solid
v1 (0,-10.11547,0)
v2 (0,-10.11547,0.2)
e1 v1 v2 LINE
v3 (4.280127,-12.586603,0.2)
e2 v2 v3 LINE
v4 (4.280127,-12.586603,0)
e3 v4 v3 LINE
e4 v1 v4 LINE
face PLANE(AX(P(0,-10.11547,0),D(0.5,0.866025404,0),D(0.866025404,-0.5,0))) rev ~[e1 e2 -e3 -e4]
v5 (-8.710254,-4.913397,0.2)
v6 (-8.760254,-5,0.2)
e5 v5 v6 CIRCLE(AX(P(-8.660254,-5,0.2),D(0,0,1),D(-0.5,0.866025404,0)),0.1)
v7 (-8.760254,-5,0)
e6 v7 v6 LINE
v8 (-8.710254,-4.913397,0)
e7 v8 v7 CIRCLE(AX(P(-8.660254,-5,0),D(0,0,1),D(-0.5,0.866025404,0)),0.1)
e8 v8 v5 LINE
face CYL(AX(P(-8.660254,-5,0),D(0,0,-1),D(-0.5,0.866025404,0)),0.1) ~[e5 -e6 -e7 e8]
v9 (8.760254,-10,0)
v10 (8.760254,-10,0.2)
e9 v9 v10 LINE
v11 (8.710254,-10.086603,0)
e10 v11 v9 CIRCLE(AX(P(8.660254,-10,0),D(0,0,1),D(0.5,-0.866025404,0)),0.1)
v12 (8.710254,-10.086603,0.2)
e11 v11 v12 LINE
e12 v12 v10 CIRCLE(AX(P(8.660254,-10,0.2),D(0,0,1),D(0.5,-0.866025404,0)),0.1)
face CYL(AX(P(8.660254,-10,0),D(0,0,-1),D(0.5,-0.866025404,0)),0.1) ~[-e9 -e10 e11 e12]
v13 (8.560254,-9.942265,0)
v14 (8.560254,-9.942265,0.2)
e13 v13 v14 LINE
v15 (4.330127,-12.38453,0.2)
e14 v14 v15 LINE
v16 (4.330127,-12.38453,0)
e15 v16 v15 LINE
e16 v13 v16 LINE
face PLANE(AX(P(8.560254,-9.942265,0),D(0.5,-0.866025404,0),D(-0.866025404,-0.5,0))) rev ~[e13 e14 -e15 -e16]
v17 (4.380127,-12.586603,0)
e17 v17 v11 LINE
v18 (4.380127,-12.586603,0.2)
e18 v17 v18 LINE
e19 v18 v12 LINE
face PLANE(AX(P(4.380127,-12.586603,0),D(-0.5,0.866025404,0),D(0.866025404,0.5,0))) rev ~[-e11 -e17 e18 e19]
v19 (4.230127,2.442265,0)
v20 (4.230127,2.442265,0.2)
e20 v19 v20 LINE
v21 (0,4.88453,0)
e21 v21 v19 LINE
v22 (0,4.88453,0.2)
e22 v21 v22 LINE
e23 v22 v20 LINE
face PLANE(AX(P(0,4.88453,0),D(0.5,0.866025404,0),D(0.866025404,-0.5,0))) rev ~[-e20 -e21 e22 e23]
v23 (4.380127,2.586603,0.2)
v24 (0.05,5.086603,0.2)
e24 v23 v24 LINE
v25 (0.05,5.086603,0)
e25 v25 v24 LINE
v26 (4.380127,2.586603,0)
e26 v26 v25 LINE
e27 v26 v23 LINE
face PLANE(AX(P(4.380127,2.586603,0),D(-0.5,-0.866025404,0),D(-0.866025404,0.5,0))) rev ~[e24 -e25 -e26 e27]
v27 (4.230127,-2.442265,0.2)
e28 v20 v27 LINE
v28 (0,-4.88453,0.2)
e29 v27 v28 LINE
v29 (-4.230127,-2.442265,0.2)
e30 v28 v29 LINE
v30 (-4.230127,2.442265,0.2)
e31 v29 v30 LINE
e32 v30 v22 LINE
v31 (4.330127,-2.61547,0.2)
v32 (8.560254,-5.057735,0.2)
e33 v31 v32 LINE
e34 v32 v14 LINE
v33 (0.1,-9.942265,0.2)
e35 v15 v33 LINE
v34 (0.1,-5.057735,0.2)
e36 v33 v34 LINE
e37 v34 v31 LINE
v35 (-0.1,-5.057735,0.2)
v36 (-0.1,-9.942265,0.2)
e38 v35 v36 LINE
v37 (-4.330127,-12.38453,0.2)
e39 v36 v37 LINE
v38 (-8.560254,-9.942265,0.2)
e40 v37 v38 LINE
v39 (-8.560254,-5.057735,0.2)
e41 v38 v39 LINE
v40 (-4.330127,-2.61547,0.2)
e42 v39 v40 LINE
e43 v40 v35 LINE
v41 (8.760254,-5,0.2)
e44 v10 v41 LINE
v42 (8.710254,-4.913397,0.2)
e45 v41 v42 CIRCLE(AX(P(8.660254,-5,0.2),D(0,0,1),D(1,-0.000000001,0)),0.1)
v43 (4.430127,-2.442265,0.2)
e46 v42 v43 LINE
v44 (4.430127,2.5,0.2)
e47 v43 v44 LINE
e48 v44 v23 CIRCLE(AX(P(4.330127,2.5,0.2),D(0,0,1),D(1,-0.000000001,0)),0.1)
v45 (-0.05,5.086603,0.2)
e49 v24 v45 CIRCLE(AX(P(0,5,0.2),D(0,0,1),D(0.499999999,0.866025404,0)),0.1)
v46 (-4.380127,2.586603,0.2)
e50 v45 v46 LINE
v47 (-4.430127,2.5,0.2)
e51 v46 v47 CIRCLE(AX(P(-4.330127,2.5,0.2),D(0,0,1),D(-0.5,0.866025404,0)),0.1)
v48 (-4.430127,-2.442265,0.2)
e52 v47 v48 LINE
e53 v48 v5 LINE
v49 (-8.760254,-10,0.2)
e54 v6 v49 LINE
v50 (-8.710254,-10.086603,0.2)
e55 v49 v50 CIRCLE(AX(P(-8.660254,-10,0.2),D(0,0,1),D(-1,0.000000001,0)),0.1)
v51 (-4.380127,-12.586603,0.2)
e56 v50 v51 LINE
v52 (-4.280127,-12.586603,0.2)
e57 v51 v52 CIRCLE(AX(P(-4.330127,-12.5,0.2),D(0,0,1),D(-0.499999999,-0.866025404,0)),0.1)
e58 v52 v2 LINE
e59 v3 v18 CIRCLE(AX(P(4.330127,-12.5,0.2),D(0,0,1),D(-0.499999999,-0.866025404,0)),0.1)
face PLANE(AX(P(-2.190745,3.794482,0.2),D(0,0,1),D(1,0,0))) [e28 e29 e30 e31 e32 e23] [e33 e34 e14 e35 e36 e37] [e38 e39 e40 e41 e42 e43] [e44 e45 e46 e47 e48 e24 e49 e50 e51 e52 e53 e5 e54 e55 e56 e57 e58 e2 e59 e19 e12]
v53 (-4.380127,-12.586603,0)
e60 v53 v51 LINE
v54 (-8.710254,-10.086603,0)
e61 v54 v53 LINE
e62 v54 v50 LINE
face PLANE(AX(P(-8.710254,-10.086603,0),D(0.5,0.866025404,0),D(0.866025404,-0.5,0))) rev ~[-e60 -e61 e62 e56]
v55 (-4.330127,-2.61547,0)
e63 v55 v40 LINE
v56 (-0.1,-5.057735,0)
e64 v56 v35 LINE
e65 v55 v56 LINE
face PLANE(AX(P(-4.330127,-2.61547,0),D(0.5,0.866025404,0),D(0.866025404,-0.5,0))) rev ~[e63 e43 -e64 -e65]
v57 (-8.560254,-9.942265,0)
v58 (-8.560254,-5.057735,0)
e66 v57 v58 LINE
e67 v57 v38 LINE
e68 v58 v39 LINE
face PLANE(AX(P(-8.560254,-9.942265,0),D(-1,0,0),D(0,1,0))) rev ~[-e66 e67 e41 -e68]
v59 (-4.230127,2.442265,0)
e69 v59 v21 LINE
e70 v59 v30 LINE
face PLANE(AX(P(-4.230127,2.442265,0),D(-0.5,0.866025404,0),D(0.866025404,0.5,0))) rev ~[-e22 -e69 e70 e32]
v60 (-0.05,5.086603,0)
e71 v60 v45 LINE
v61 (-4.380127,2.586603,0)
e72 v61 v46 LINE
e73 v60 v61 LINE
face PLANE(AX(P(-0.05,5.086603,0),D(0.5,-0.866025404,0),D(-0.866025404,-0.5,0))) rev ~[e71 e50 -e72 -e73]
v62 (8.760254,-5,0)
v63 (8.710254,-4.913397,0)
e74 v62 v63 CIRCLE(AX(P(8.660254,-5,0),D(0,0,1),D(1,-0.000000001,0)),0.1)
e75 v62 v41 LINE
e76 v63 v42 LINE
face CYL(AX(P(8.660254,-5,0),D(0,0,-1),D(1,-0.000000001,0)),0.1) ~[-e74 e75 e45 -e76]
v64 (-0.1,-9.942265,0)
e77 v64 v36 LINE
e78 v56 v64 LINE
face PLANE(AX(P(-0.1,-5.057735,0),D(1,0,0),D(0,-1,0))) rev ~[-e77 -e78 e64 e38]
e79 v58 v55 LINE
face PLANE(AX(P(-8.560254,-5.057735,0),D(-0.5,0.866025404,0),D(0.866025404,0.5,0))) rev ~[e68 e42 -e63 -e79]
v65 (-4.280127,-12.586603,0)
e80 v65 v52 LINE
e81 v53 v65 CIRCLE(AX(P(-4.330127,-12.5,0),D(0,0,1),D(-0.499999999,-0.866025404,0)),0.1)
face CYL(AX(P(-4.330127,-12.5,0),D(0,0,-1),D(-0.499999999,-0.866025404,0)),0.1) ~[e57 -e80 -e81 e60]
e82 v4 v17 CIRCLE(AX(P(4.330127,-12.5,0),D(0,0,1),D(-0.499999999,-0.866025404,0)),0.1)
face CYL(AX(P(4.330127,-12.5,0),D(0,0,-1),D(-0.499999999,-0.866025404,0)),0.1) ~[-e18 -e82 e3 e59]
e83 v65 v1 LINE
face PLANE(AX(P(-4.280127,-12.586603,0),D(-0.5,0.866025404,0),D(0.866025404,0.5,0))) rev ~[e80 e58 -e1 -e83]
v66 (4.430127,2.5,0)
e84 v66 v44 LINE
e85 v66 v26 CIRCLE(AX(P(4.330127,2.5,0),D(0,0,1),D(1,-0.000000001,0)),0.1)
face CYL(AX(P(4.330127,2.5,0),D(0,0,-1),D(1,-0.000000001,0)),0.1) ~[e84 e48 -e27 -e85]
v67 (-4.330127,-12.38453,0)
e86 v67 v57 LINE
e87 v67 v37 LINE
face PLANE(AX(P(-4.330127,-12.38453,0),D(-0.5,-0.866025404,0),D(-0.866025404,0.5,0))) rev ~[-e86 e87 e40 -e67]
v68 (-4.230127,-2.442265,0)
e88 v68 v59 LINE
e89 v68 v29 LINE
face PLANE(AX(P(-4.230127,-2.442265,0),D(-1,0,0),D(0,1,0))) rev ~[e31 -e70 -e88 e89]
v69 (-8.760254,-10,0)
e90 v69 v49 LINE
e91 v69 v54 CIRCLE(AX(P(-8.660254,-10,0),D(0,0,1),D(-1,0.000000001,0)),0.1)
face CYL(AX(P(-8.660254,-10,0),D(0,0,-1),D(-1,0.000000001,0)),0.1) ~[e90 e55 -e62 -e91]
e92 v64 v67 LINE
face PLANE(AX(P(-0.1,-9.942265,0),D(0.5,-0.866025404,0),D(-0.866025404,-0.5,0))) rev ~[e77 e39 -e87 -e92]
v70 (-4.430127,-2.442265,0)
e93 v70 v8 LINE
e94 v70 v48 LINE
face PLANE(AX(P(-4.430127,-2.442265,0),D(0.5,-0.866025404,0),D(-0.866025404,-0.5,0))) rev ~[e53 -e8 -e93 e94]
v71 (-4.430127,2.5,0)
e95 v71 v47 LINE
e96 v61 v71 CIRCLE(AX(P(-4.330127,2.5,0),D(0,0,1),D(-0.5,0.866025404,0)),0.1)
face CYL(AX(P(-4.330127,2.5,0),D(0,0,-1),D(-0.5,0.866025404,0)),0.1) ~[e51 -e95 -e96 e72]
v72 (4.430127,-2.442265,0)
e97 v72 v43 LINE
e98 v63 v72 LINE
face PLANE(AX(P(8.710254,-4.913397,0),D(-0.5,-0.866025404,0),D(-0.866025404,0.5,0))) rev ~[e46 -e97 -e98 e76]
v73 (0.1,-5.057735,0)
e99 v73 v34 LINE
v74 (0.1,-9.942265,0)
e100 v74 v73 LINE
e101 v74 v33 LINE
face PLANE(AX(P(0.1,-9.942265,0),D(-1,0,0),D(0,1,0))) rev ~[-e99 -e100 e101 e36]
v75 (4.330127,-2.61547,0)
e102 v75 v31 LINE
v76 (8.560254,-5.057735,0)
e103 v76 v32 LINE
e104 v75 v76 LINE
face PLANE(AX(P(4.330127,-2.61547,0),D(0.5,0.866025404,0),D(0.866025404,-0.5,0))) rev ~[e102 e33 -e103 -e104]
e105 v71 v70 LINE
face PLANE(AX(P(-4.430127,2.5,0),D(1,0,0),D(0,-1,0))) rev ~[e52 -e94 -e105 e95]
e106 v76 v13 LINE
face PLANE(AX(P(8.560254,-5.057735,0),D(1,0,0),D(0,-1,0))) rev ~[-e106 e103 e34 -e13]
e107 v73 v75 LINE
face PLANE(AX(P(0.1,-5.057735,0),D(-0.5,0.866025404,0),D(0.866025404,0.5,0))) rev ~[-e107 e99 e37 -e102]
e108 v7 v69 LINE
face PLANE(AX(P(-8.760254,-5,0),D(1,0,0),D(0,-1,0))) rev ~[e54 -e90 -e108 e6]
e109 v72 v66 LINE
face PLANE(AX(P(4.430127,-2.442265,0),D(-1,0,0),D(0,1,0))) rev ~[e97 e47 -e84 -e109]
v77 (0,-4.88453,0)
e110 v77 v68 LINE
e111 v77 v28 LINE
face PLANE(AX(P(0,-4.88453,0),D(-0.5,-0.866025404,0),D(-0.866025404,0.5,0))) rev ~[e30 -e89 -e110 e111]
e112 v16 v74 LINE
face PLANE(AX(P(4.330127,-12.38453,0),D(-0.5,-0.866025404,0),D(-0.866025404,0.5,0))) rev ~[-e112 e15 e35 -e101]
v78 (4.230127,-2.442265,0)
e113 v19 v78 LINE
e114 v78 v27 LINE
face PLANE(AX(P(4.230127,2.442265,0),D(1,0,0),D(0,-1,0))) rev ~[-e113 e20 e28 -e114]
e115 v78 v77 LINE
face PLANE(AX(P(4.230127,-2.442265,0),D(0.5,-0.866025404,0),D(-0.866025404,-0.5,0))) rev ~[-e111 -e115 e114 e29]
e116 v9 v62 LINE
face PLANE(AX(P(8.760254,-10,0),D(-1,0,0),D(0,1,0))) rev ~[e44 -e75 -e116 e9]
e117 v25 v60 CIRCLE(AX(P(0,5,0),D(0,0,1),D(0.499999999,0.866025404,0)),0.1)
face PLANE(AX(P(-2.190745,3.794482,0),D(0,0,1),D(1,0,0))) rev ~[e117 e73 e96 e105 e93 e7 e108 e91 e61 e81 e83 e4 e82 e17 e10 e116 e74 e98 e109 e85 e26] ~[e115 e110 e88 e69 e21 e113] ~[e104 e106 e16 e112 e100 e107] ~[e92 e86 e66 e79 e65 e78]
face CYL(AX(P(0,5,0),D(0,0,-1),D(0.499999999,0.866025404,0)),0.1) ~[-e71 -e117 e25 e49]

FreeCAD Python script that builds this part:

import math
import FreeCAD as App
import Part
import Sketcher

V = App.Vector


def add_polygon(sketch, points):
    """Adds a closed chain of lines whose ends are joined by coincident constraints."""
    first, n = sketch.GeometryCount, len(points)
    for a, b in zip(points, points[1:] + points[:1]):
        sketch.addGeometry(Part.LineSegment(App.Vector(*a, 0), App.Vector(*b, 0)), False)
    for i in range(n):
        sketch.addConstraint(Sketcher.Constraint("Coincident", first + i, 2, first + (i + 1) % n, 1))

doc = App.newDocument("Part")
body = doc.addObject("PartDesign::Body", "Body")

# Sketch on XY plane
sketch1 = body.newObject("Sketcher::SketchObject", "Sketch")
sketch1.AttachmentSupport = (doc.getObject("XY_Plane"), [""])
sketch1.MapMode = "FlatFace"
sketch1.addGeometry(Part.LineSegment(V(-4.43, 2.5, 0), V(-4.43, -2.44, 0)), False)  # 0
sketch1.addGeometry(Part.LineSegment(V(-4.43, -2.44, 0), V(-8.71, -4.91, 0)), False)  # 1
sketch1.addGeometry(Part.ArcOfCircle(Part.Circle(V(-8.66, -5, 0), V(0, 0, 1), 0.1), math.radians(120), math.radians(180)), False)  # 2
sketch1.addGeometry(Part.LineSegment(V(-8.76, -5, 0), V(-8.76, -10, 0)), False)  # 3
sketch1.addGeometry(Part.ArcOfCircle(Part.Circle(V(-8.66, -10, 0), V(0, 0, 1), 0.1), math.radians(180), math.radians(240)), False)  # 4
sketch1.addGeometry(Part.LineSegment(V(-8.71, -10.09, 0), V(-4.38, -12.59, 0)), False)  # 5
sketch1.addGeometry(Part.ArcOfCircle(Part.Circle(V(-4.33, -12.5, 0), V(0, 0, 1), 0.1), math.radians(-120), math.radians(-60)), False)  # 6
sketch1.addGeometry(Part.LineSegment(V(-4.28, -12.59, 0), V(0, -10.12, 0)), False)  # 7
sketch1.addGeometry(Part.LineSegment(V(0, -10.12, 0), V(4.28, -12.59, 0)), False)  # 8
sketch1.addGeometry(Part.ArcOfCircle(Part.Circle(V(4.33, -12.5, 0), V(0, 0, 1), 0.1), math.radians(-120), math.radians(-60)), False)  # 9
sketch1.addGeometry(Part.LineSegment(V(4.38, -12.59, 0), V(8.71, -10.09, 0)), False)  # 10
sketch1.addGeometry(Part.ArcOfCircle(Part.Circle(V(8.66, -10, 0), V(0, 0, 1), 0.1), math.radians(-60), math.radians(0)), False)  # 11
sketch1.addGeometry(Part.LineSegment(V(8.76, -10, 0), V(8.76, -5, 0)), False)  # 12
sketch1.addGeometry(Part.ArcOfCircle(Part.Circle(V(8.66, -5, 0), V(0, 0, 1), 0.1), math.radians(0), math.radians(60)), False)  # 13
sketch1.addGeometry(Part.LineSegment(V(8.71, -4.91, 0), V(4.43, -2.44, 0)), False)  # 14
sketch1.addGeometry(Part.LineSegment(V(4.43, -2.44, 0), V(4.43, 2.5, 0)), False)  # 15
sketch1.addGeometry(Part.ArcOfCircle(Part.Circle(V(4.33, 2.5, 0), V(0, 0, 1), 0.1), math.radians(0), math.radians(60)), False)  # 16
sketch1.addGeometry(Part.LineSegment(V(4.38, 2.59, 0), V(0.05, 5.09, 0)), False)  # 17
sketch1.addGeometry(Part.ArcOfCircle(Part.Circle(V(0, 5, 0), V(0, 0, 1), 0.1), math.radians(60), math.radians(120)), False)  # 18
sketch1.addGeometry(Part.LineSegment(V(-0.05, 5.09, 0), V(-4.38, 2.59, 0)), False)  # 19
sketch1.addGeometry(Part.ArcOfCircle(Part.Circle(V(-4.33, 2.5, 0), V(0, 0, 1), 0.1), math.radians(120), math.radians(180)), False)  # 20
add_polygon(sketch1, [(-8.56, -5.06), (-4.33, -2.62), (-0.1, -5.06), (-0.1, -9.94), (-4.33, -12.38), (-8.56, -9.94)])  # lines 21-26
add_polygon(sketch1, [(4.33, -12.38), (0.1, -9.94), (0.1, -5.06), (4.33, -2.62), (8.56, -5.06), (8.56, -9.94)])  # lines 27-32
add_polygon(sketch1, [(0, -4.88), (-4.23, -2.44), (-4.23, 2.44), (0, 4.88), (4.23, 2.44), (4.23, -2.44)])  # lines 33-38
sketch1.addConstraint([
    Sketcher.Constraint("Coincident", 0, 2, 1, 1),
    Sketcher.Constraint("Tangent", 1, 2, 2, 1),
    Sketcher.Constraint("Tangent", 2, 2, 3, 1),
    Sketcher.Constraint("Tangent", 3, 2, 4, 1),
    Sketcher.Constraint("Tangent", 4, 2, 5, 1),
    Sketcher.Constraint("Tangent", 5, 2, 6, 1),
    Sketcher.Constraint("Tangent", 6, 2, 7, 1),
    Sketcher.Constraint("Coincident", 7, 2, 8, 1),
    Sketcher.Constraint("Tangent", 8, 2, 9, 1),
    Sketcher.Constraint("Tangent", 9, 2, 10, 1),
    Sketcher.Constraint("Tangent", 10, 2, 11, 1),
    Sketcher.Constraint("Tangent", 11, 2, 12, 1),
    Sketcher.Constraint("Tangent", 12, 2, 13, 1),
    Sketcher.Constraint("Tangent", 13, 2, 14, 1),
    Sketcher.Constraint("Coincident", 14, 2, 15, 1),
    Sketcher.Constraint("Tangent", 15, 2, 16, 1),
    Sketcher.Constraint("Tangent", 16, 2, 17, 1),
    Sketcher.Constraint("Tangent", 17, 2, 18, 1),
    Sketcher.Constraint("Tangent", 18, 2, 19, 1),
    Sketcher.Constraint("Tangent", 19, 2, 20, 1),
    Sketcher.Constraint("Tangent", 20, 2, 0, 1),
    Sketcher.Constraint("Vertical", 0),
    Sketcher.Constraint("Vertical", 3),
    Sketcher.Constraint("Vertical", 12),
    Sketcher.Constraint("Vertical", 15),
    Sketcher.Constraint("Vertical", 23),
    Sketcher.Constraint("Vertical", 26),
    Sketcher.Constraint("Vertical", 28),
    Sketcher.Constraint("Vertical", 31),
    Sketcher.Constraint("Vertical", 34),
    Sketcher.Constraint("Vertical", 37),
    Sketcher.Constraint("Equal", 2, 4),
    Sketcher.Constraint("Equal", 4, 6),
    Sketcher.Constraint("Equal", 6, 9),
    Sketcher.Constraint("Equal", 9, 11),
    Sketcher.Constraint("Equal", 11, 13),
    Sketcher.Constraint("Equal", 13, 16),
    Sketcher.Constraint("Equal", 16, 18),
    Sketcher.Constraint("Equal", 18, 20),
    Sketcher.Constraint("Symmetric", 33, 2, 36, 2, -1, 1),
    Sketcher.Constraint("Symmetric", 35, 2, 38, 2, -1, 1),
    Sketcher.Constraint("Symmetric", 6, 3, 9, 3, -2),
    Sketcher.Constraint("Symmetric", 4, 3, 11, 3, -2),
    Sketcher.Constraint("Symmetric", 16, 3, 20, 3, -2),
    Sketcher.Constraint("Symmetric", 1, 2, 13, 2, -2),
    Sketcher.Constraint("Symmetric", 23, 2, 27, 2, -2),
    Sketcher.Constraint("Symmetric", 21, 2, 29, 2, -2),
    Sketcher.Constraint("Symmetric", 26, 2, 30, 2, -2),
    Sketcher.Constraint("Symmetric", 24, 2, 32, 2, -2),
    Sketcher.Constraint("PointOnObject", 18, 3, -2),
    Sketcher.Constraint("PointOnObject", 7, 2, -2),
    Sketcher.Constraint("PointOnObject", 35, 2, -2),
    Sketcher.Constraint("Parallel", 1, 7),
    Sketcher.Constraint("Parallel", 5, 8),
    Sketcher.Constraint("Parallel", 14, 17),
    Sketcher.Constraint("Parallel", 19, 21),
    Sketcher.Constraint("Parallel", 17, 22),
    Sketcher.Constraint("Parallel", 21, 24),
    Sketcher.Constraint("Parallel", 22, 25),
    Sketcher.Constraint("Parallel", 24, 29),
    Sketcher.Constraint("Parallel", 29, 32),
    Sketcher.Constraint("Parallel", 30, 33),
    Sketcher.Constraint("Parallel", 32, 35),
    Sketcher.Constraint("Parallel", 35, 38),
    Sketcher.Constraint("Horizontal", 23, 2, 25, 2),
    Sketcher.Constraint("Horizontal", 22, 2, 26, 2),
    Sketcher.Constraint("Horizontal", 14, 2, 33, 2),
    Sketcher.Constraint("Vertical", 9, 3, 16, 3),
    Sketcher.Constraint("Vertical", 20, 3, 21, 2),
    Sketcher.Constraint("Equal", 31, 34),
    Sketcher.Constraint("Equal", 1, 7),
    Sketcher.Constraint("Equal", 10, 17),
    Sketcher.Constraint("Equal", 32, 33),
    Sketcher.Constraint("Radius", 2, 0.1),
    Sketcher.Constraint("DistanceY", 3, 2, 3, 1, 5.0),
    Sketcher.Constraint("Distance", 5, 5.0),
    Sketcher.Constraint("DistanceY", 2, 3, -1, 1, 5.0),
    Sketcher.Constraint("DistanceY", -1, 1, 18, 3, 5.0),
    Sketcher.Constraint("DistanceX", 22, 2, -1, 1, 0.1),
    Sketcher.Constraint("DistanceY", 21, 2, -1, 1, 2.61547),
])
pad1 = body.newObject("PartDesign::Pad", "Pad")
pad1.Profile = sketch1
pad1.Length = 0.2

doc.recompute()
